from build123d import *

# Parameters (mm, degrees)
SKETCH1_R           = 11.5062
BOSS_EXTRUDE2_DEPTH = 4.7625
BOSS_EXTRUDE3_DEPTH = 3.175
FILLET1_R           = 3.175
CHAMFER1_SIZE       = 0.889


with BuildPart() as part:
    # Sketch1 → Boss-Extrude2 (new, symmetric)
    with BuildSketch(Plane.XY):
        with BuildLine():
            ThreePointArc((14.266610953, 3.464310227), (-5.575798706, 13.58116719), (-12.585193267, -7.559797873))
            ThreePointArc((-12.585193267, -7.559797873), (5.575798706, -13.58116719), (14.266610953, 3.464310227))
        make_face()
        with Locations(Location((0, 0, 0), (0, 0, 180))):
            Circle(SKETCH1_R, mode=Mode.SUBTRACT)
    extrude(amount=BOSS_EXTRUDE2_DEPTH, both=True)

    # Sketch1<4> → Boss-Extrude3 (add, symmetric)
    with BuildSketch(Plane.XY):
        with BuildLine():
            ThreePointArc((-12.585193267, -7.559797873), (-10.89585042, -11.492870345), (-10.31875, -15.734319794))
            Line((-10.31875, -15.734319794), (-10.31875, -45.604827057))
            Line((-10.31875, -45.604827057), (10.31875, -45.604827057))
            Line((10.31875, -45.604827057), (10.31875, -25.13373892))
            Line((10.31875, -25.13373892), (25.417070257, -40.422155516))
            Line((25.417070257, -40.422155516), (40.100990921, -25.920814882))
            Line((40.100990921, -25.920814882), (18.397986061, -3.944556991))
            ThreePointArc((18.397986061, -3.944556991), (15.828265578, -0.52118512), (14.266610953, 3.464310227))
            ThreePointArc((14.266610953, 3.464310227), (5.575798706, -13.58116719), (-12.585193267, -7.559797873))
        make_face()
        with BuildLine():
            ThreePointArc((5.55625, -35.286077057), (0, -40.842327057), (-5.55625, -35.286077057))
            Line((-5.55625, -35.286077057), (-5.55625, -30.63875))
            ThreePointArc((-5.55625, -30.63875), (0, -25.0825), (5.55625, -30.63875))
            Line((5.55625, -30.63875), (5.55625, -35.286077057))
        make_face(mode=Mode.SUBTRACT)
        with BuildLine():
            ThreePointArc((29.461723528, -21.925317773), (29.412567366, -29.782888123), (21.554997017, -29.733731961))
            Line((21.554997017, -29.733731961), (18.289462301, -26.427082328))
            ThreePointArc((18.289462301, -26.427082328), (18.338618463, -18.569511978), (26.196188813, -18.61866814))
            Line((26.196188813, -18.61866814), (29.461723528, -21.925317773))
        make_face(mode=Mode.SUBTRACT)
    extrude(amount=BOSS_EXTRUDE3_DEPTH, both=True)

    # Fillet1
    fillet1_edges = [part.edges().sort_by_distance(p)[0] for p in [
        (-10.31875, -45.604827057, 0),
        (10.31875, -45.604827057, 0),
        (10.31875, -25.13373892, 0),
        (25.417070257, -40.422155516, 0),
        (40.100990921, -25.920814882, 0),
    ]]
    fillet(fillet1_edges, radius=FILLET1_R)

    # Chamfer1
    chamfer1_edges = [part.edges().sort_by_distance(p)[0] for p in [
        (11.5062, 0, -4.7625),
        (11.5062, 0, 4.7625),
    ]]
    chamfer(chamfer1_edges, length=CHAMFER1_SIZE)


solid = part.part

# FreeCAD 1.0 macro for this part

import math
import FreeCAD as App
import Part
import Sketcher

V = App.Vector
Q = App.Units.Quantity


def edges_at(feature, points):
    """Names of the edges that pass closest to the given points."""
    edges = feature.Shape.Edges
    near = lambda p: min(range(len(edges)), key=lambda i: edges[i].distToShape(Part.Vertex(*p))[0])
    return sorted({f"Edge{near(p) + 1}" for p in points})

doc = App.newDocument("Part")
params = doc.addObject("Spreadsheet::Sheet", "Params")
for row, (alias, value) in enumerate([
    ("sketch1_diameter", "0.906 in"),
    ("sketch1_radius", "0.578 in"),
    ("pad1_length", "0.375 in"),
    ("sketch2_radius", "0.625 in"),
    ("sketch2_radius2", "0.578 in"),
    ("sketch2_radius3", "0.21875 in"),
    ("sketch2_width", "0.8125 in"),
    ("sketch2_length", "0.8125 in"),
    ("pad2_length", "0.25 in"),
    ("fillet_radius", "0.125 in"),
    ("chamfer_size", "0.035 in"),
], start=1):
    params.set(f"A{row}", alias)
    params.set(f"B{row}", "=" + value)
    params.setAlias(f"B{row}", alias)

body = doc.addObject("PartDesign::Body", "Body")

# Sketch on XY plane
sketch1 = doc.addObject("Sketcher::SketchObject", "Sketch")
body.addObject(sketch1)
sketch1.AttachmentSupport = (doc.XY_Plane, [""])
sketch1.MapMode = "FlatFace"
sketch1.addGeometry(Part.ArcOfCircle(Part.Circle(V(0, 0, 0), V(0, 0, 1), 15), math.radians(14), math.radians(211)), False)
sketch1.addGeometry(Part.ArcOfCircle(Part.Circle(V(0, 0, 0), V(0, 0, 1), 15), math.radians(-149), math.radians(14)), False)
sketch1.addGeometry(Part.Circle(V(0, 0, 0), V(0, 0, 1), 12), False)
sketch1.addConstraint(Sketcher.Constraint("Tangent", 0, 1, 1, 2))
sketch1.addConstraint(Sketcher.Constraint("Coincident", 1, 1, 0, 2))
sketch1.addConstraint(Sketcher.Constraint("Coincident", 0, 3, -1, 1))
sketch1.addConstraint(Sketcher.Constraint("Coincident", 2, 3, -1, 1))
sketch1.addConstraint(Sketcher.Constraint("Diameter", 2, Q("0.906 in")))
sketch1.addConstraint(Sketcher.Constraint("Radius", 0, Q("0.578 in")))
sketch1.addConstraint(Sketcher.Constraint("DistanceX", -1, 1, 0, 1, Q("14.266611 mm")))
sketch1.addConstraint(Sketcher.Constraint("DistanceY", 1, 1, 0, 1, Q("11.024108 mm")))
sketch1.setExpression("Constraints[4]", "Params.sketch1_diameter")
sketch1.setExpression("Constraints[5]", "Params.sketch1_radius")
pad1 = doc.addObject("PartDesign::Pad", "Pad")
body.addObject(pad1)
pad1.Profile = sketch1
pad1.setExpression("Length", "Params.pad1_length")
pad1.Midplane = True

# Sketch on XY plane
sketch2 = doc.addObject("Sketcher::SketchObject", "Sketch001")
body.addObject(sketch2)
sketch2.AttachmentSupport = (doc.XY_Plane, [""])
sketch2.MapMode = "FlatFace"
sketch2.addGeometry(Part.ArcOfCircle(Part.Circle(V(-26.2, -15.7, 0), V(0, 0, 1), 15.9), math.radians(0), math.radians(31)), False)
sketch2.addGeometry(Part.LineSegment(V(-10.3, -15.7, 0), V(-10.3, -45.6, 0)), False)
sketch2.addGeometry(Part.LineSegment(V(-10.3, -45.6, 0), V(10.3, -45.6, 0)), False)
sketch2.addGeometry(Part.LineSegment(V(10.3, -45.6, 0), V(10.3, -25.1, 0)), False)
sketch2.addGeometry(Part.LineSegment(V(10.3, -25.1, 0), V(25.4, -40.4, 0)), False)
sketch2.addGeometry(Part.LineSegment(V(25.4, -40.4, 0), V(40.1, -25.9, 0)), False)
sketch2.addGeometry(Part.LineSegment(V(40.1, -25.9, 0), V(18.4, -3.9, 0)), False)
sketch2.addGeometry(Part.ArcOfCircle(Part.Circle(V(29.7, 7.2, 0), V(0, 0, 1), 15.9), math.radians(-166), math.radians(-135)), False)
sketch2.addGeometry(Part.ArcOfCircle(Part.Circle(V(0, 0, 0), V(0, 0, 1), 14.7), math.radians(-149), math.radians(14)), False)
sketch2.addGeometry(Part.LineSegment(V(5.6, -30.6, 0), V(5.6, -35.3, 0)), False)
sketch2.addGeometry(Part.ArcOfCircle(Part.Circle(V(0, -35.3, 0), V(0, 0, 1), 5.6), math.radians(180), math.radians(360)), False)
sketch2.addGeometry(Part.LineSegment(V(-5.6, -35.3, 0), V(-5.6, -30.6, 0)), False)
sketch2.addGeometry(Part.ArcOfCircle(Part.Circle(V(0, -30.6, 0), V(0, 0, 1), 5.6), math.radians(0), math.radians(180)), False)
sketch2.addGeometry(Part.LineSegment(V(26.2, -18.6, 0), V(29.5, -21.9, 0)), False)
sketch2.addGeometry(Part.ArcOfCircle(Part.Circle(V(25.5, -25.8, 0), V(0, 0, 1), 5.6), math.radians(-135), math.radians(45)), False)
sketch2.addGeometry(Part.LineSegment(V(21.6, -29.7, 0), V(18.3, -26.4, 0)), False)
sketch2.addGeometry(Part.ArcOfCircle(Part.Circle(V(22.2, -22.5, 0), V(0, 0, 1), 5.6), math.radians(45), math.radians(225)), False)
sketch2.addConstraint(Sketcher.Constraint("Tangent", 0, 1, 1, 1))
sketch2.addConstraint(Sketcher.Constraint("Coincident", 1, 2, 2, 1))
sketch2.addConstraint(Sketcher.Constraint("Coincident", 2, 2, 3, 1))
sketch2.addConstraint(Sketcher.Constraint("Coincident", 3, 2, 4, 1))
sketch2.addConstraint(Sketcher.Constraint("Coincident", 4, 2, 5, 1))
sketch2.addConstraint(Sketcher.Constraint("Coincident", 5, 2, 6, 1))
sketch2.addConstraint(Sketcher.Constraint("Tangent", 6, 2, 7, 2))
sketch2.addConstraint(Sketcher.Constraint("Tangent", 7, 1, 8, 2))
sketch2.addConstraint(Sketcher.Constraint("Tangent", 8, 1, 0, 2))
sketch2.addConstraint(Sketcher.Constraint("Tangent", 9, 2, 10, 2))
sketch2.addConstraint(Sketcher.Constraint("Tangent", 10, 1, 11, 1))
sketch2.addConstraint(Sketcher.Constraint("Tangent", 11, 2, 12, 2))
sketch2.addConstraint(Sketcher.Constraint("Tangent", 12, 1, 9, 1))
sketch2.addConstraint(Sketcher.Constraint("Tangent", 13, 2, 14, 2))
sketch2.addConstraint(Sketcher.Constraint("Tangent", 14, 1, 15, 1))
sketch2.addConstraint(Sketcher.Constraint("Tangent", 15, 2, 16, 2))
sketch2.addConstraint(Sketcher.Constraint("Tangent", 16, 1, 13, 1))
sketch2.addConstraint(Sketcher.Constraint("Vertical", 1))
sketch2.addConstraint(Sketcher.Constraint("Horizontal", 2))
sketch2.addConstraint(Sketcher.Constraint("Vertical", 3))
sketch2.addConstraint(Sketcher.Constraint("Vertical", 9))
sketch2.addConstraint(Sketcher.Constraint("Vertical", 11))
sketch2.addConstraint(Sketcher.Constraint("Coincident", 8, 3, -1, 1))
sketch2.addConstraint(Sketcher.Constraint("Equal", 0, 7))
sketch2.addConstraint(Sketcher.Constraint("Equal", 12, 14))
sketch2.addConstraint(Sketcher.Constraint("Equal", 14, 16))
sketch2.addConstraint(Sketcher.Constraint("PointOnObject", 10, 3, -2))
sketch2.addConstraint(Sketcher.Constraint("Perpendicular", 4, 5))
sketch2.addConstraint(Sketcher.Constraint("Perpendicular", 5, 6))
sketch2.addConstraint(Sketcher.Constraint("Parallel", 6, 13))
sketch2.addConstraint(Sketcher.Constraint("Radius", 0, Q("0.625 in")))
sketch2.addConstraint(Sketcher.Constraint("Radius", 8, Q("0.578 in")))
sketch2.addConstraint(Sketcher.Constraint("Radius", 10, Q("0.21875 in")))
sketch2.addConstraint(Sketcher.Constraint("DistanceX", 2, 1, 2, 2, Q("0.8125 in")))
sketch2.addConstraint(Sketcher.Constraint("Distance", 5, Q("0.8125 in")))
sketch2.addConstraint(Sketcher.Constraint("DistanceX", 0, 3, -1, 1, Q("1.03125 in")))
sketch2.addConstraint(Sketcher.Constraint("DistanceY", 1, 2, 10, 3, Q("0.40625 in")))
sketch2.addConstraint(Sketcher.Constraint("DistanceY", 3, 1, 3, 2, Q("20.471088 mm")))
sketch2.addConstraint(Sketcher.Constraint("DistanceY", 10, 3, 16, 3, Q("12.763202 mm")))
sketch2.addConstraint(Sketcher.Constraint("DistanceX", 7, 1, 7, 3, Q("15.426699 mm")))
sketch2.addConstraint(Sketcher.Constraint("Distance", 4, Q("21.487088 mm")))
sketch2.addConstraint(Sketcher.Constraint("DistanceY", 1, 2, 1, 1, Q("29.870507 mm")))
sketch2.addConstraint(Sketcher.Constraint("DistanceY", 9, 2, 9, 1, Q("4.647327 mm")))
sketch2.addConstraint(Sketcher.Constraint("DistanceX", -1, 1, 14, 3, Q("25.50836 mm")))
sketch2.addConstraint(Sketcher.Constraint("DistanceY", 14, 1, -1, 1, Q("29.733732 mm")))
sketch2.setExpression("Constraints[30]", "Params.sketch2_radius")
sketch2.setExpression("Constraints[31]", "Params.sketch2_radius2")
sketch2.setExpression("Constraints[32]", "Params.sketch2_radius3")
sketch2.setExpression("Constraints[33]", "Params.sketch2_width")
sketch2.setExpression("Constraints[34]", "Params.sketch2_length")
pad2 = doc.addObject("PartDesign::Pad", "Pad001")
body.addObject(pad2)
pad2.Profile = sketch2
pad2.setExpression("Length", "Params.pad2_length")
pad2.Midplane = True
doc.recompute()

fillet = doc.addObject("PartDesign::Fillet", "Fillet")
body.addObject(fillet)
fillet.Base = (pad2, edges_at(pad2, [
    (-10.319, -45.605, 0),
    (10.319, -45.605, 0),
    (10.319, -25.134, 0),
    (25.417, -40.422, 0),
    (40.101, -25.921, 0),
]))
fillet.setExpression("Radius", "Params.fillet_radius")
doc.recompute()

chamfer = doc.addObject("PartDesign::Chamfer", "Chamfer")
body.addObject(chamfer)
chamfer.Base = (fillet, edges_at(fillet, [(11.506, 0, -4.763), (11.506, 0, 4.763)]))
chamfer.setExpression("Size", "Params.chamfer_size")

doc.recompute()
